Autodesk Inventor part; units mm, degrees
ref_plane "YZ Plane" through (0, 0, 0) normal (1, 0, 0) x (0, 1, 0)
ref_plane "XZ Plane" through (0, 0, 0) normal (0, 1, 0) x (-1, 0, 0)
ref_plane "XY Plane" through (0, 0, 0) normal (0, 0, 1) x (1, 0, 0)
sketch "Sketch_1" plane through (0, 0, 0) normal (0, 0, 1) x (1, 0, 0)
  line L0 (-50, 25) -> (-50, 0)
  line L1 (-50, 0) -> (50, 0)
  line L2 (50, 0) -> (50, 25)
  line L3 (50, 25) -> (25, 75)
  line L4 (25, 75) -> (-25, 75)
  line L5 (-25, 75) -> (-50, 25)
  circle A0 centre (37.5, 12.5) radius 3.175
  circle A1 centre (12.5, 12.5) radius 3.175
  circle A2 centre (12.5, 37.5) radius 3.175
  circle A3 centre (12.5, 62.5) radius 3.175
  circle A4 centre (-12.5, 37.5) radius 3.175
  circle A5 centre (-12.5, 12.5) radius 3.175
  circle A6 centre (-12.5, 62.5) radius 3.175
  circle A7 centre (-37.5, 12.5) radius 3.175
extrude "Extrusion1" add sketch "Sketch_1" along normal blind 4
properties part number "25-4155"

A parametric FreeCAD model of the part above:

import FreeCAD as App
import Part
import Sketcher
from FreeCAD import Vector


def add_polygon(sketch, points):
    """Adds a closed chain of lines whose ends are joined by coincident constraints."""
    first, n = sketch.GeometryCount, len(points)
    for a, b in zip(points, points[1:] + points[:1]):
        sketch.addGeometry(Part.LineSegment(App.Vector(*a, 0), App.Vector(*b, 0)), False)
    for i in range(n):
        sketch.addConstraint(Sketcher.Constraint("Coincident", first + i, 2, first + (i + 1) % n, 1))

doc = App.newDocument("Part")
body = doc.addObject("PartDesign::Body", "Body")

# Sketch on XY plane
sketch1 = doc.addObject("Sketcher::SketchObject", "Sketch")
body.addObject(sketch1)
sketch1.AttachmentSupport = (doc.XY_Plane, [""])
sketch1.MapMode = "FlatFace"
add_polygon(sketch1, [(-25, 75), (-50, 25), (-50, 0), (50, 0), (50, 25), (25, 75)])  # lines 0-5
sketch1.addGeometry(Part.Circle(Vector(-37.5, 12.5, 0), Vector(0, 0, 1), 3.2), False)  # 6
sketch1.addGeometry(Part.Circle(Vector(-12.5, 12.5, 0), Vector(0, 0, 1), 3.2), False)  # 7
sketch1.addGeometry(Part.Circle(Vector(12.5, 12.5, 0), Vector(0, 0, 1), 3.2), False)  # 8
sketch1.addGeometry(Part.Circle(Vector(37.5, 12.5, 0), Vector(0, 0, 1), 3.2), False)  # 9
sketch1.addGeometry(Part.Circle(Vector(-12.5, 37.5, 0), Vector(0, 0, 1), 3.2), False)  # 10
sketch1.addGeometry(Part.Circle(Vector(-12.5, 62.5, 0), Vector(0, 0, 1), 3.2), False)  # 11
sketch1.addGeometry(Part.Circle(Vector(12.5, 37.5, 0), Vector(0, 0, 1), 3.2), False)  # 12
sketch1.addGeometry(Part.Circle(Vector(12.5, 62.5, 0), Vector(0, 0, 1), 3.2), False)  # 13
sketch1.addConstraint([
    Sketcher.Constraint("Vertical", 1),
    Sketcher.Constraint("Horizontal", 2),
    Sketcher.Constraint("Vertical", 3),
    Sketcher.Constraint("Horizontal", 5),
    Sketcher.Constraint("Equal", 6, 7),
    Sketcher.Constraint("Equal", 7, 8),
    Sketcher.Constraint("Equal", 8, 9),
    Sketcher.Constraint("Equal", 9, 10),
    Sketcher.Constraint("Equal", 10, 11),
    Sketcher.Constraint("Equal", 11, 12),
    Sketcher.Constraint("Equal", 12, 13),
    Sketcher.Constraint("Symmetric", 1, 2, 2, 2, -1, 1),
    Sketcher.Constraint("Symmetric", 7, 3, 8, 3, -2),
    Sketcher.Constraint("Symmetric", 6, 3, 9, 3, -2),
    Sketcher.Constraint("Symmetric", 10, 3, 12, 3, -2),
    Sketcher.Constraint("Symmetric", 11, 3, 13, 3, -2),
    Sketcher.Constraint("Horizontal", 6, 3, 7, 3),
    Sketcher.Constraint("Horizontal", 0, 2, 3, 2),
    Sketcher.Constraint("Vertical", 7, 3, 10, 3),
    Sketcher.Constraint("Vertical", 10, 3, 11, 3),
    Sketcher.Constraint("Equal", 0, 4),
    Sketcher.Constraint("Diameter", 6, 6.35),
    Sketcher.Constraint("DistanceX", 2, 1, 2, 2, 100.0),
    Sketcher.Constraint("DistanceX", 5, 2, 5, 1, 50.0),
    Sketcher.Constraint("DistanceY", 1, 2, 1, 1, 25.0),
    Sketcher.Constraint("DistanceY", -1, 1, 4, 2, 75.0),
    Sketcher.Constraint("DistanceX", 6, 3, 7, 3, 25.0),
    Sketcher.Constraint("DistanceX", 7, 3, 8, 3, 25.0),
    Sketcher.Constraint("DistanceY", 7, 3, 10, 3, 25.0),
    Sketcher.Constraint("DistanceY", 10, 3, 11, 3, 25.0),
    Sketcher.Constraint("DistanceY", -1, 1, 6, 3, 12.5),
])
pad1 = doc.addObject("PartDesign::Pad", "Pad")
body.addObject(pad1)
pad1.Profile = sketch1
pad1.Length = 4

doc.recompute()
